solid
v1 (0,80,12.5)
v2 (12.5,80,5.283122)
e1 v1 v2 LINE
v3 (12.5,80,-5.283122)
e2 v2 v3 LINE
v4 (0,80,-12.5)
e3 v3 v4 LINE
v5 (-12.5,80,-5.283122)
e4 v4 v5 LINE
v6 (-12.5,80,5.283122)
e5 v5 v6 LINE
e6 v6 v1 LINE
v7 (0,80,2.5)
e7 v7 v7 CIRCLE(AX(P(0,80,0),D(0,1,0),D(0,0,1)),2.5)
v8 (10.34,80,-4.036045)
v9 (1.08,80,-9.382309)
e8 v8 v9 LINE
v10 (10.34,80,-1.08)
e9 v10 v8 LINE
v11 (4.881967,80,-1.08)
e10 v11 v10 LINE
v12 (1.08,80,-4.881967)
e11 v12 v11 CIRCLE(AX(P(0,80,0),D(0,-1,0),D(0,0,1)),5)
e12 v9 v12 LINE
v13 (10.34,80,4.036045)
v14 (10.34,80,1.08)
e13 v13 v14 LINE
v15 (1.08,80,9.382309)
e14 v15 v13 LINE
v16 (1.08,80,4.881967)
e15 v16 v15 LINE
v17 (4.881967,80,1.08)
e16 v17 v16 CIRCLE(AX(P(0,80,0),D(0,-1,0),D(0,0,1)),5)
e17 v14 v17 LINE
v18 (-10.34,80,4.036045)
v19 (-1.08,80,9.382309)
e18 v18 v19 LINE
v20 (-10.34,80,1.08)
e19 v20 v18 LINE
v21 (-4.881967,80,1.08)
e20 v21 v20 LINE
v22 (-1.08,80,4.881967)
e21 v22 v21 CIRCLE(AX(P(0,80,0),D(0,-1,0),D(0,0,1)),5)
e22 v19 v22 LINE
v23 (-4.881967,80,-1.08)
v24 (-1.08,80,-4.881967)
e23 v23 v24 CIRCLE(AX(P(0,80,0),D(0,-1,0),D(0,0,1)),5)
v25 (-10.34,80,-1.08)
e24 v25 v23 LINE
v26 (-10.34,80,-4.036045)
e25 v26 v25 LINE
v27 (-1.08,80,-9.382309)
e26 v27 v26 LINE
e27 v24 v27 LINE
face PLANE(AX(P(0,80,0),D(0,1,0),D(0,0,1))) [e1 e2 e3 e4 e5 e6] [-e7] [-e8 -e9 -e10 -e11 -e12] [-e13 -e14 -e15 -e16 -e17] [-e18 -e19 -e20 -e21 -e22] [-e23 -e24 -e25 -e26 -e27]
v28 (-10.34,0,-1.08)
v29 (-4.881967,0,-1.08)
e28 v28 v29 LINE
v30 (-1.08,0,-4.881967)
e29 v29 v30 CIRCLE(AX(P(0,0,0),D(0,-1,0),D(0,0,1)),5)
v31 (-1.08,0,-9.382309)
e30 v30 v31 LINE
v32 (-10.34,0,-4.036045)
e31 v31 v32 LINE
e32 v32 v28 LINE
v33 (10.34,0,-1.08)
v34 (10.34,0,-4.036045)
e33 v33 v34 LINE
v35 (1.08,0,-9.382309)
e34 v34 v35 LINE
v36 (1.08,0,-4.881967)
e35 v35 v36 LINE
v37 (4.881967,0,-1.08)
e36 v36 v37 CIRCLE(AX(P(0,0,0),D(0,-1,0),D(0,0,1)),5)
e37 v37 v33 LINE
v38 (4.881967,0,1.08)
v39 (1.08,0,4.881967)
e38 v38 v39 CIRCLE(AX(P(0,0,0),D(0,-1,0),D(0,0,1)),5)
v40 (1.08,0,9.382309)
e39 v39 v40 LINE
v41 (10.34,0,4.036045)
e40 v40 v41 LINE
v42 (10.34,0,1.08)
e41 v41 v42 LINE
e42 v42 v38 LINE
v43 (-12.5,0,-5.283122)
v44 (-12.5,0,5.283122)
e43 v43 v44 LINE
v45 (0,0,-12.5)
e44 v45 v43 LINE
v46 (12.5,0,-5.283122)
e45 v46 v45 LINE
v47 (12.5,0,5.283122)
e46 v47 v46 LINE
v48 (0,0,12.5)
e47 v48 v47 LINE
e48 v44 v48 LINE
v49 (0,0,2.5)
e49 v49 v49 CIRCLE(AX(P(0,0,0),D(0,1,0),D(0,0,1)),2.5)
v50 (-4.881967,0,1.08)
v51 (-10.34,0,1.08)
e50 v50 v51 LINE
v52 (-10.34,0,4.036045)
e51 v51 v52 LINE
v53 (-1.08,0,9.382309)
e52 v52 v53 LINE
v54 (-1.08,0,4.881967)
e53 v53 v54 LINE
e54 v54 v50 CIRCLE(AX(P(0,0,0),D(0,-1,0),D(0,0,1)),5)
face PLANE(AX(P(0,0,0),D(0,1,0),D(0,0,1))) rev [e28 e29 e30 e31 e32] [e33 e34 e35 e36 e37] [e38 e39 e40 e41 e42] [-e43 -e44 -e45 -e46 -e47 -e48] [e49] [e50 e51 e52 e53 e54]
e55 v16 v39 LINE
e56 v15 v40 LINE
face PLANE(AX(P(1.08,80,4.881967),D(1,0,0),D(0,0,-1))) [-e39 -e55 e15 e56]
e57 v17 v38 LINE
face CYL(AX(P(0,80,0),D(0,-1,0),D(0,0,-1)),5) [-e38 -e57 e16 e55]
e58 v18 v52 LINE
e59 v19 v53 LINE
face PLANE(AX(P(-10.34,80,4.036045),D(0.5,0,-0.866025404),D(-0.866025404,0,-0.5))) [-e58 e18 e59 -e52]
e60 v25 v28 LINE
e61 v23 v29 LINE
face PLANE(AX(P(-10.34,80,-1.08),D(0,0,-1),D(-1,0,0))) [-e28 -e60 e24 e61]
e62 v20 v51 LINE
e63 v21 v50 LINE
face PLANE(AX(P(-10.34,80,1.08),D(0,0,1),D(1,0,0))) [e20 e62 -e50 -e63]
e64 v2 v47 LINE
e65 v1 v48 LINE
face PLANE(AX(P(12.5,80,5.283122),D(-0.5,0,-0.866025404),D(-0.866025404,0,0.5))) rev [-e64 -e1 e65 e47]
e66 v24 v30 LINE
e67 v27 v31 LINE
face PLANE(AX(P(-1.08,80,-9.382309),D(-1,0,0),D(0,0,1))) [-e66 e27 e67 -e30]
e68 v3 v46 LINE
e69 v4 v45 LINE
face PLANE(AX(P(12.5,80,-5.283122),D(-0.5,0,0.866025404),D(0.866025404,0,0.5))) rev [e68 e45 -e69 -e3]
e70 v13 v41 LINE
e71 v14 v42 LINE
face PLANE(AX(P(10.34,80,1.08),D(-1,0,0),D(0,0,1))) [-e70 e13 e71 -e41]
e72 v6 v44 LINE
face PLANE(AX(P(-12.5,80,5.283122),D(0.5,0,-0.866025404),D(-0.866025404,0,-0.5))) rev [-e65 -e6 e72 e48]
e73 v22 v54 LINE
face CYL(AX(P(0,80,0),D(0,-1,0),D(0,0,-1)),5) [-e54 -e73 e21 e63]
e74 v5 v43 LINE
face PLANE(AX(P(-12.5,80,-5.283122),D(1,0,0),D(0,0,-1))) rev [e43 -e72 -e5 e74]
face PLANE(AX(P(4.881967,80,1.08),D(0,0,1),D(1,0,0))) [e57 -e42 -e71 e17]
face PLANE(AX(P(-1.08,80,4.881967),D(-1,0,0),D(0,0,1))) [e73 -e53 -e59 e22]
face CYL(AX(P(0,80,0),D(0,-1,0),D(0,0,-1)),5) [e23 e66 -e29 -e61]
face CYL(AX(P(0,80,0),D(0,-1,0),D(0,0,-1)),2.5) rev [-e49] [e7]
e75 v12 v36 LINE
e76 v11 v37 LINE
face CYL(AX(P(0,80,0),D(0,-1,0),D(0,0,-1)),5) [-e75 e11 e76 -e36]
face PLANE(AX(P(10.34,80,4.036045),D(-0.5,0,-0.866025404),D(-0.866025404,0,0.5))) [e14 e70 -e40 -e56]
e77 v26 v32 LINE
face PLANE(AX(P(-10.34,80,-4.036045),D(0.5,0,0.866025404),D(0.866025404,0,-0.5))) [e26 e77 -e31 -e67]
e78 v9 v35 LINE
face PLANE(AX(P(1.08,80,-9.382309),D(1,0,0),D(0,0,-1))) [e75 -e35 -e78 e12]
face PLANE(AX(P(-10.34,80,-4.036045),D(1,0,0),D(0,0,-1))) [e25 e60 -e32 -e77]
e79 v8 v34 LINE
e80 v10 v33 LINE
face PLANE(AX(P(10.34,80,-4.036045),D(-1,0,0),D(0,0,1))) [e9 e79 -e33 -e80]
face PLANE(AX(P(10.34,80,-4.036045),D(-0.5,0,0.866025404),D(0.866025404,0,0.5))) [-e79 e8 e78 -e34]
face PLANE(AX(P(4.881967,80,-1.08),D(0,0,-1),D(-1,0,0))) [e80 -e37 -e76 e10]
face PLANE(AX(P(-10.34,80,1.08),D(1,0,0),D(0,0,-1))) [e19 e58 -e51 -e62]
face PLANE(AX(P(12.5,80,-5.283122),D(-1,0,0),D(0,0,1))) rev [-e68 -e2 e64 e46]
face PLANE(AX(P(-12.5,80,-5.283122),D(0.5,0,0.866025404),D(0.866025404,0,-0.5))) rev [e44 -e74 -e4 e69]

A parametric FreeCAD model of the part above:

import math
import FreeCAD as App
import Part
import Sketcher
from FreeCAD import Vector
Q = App.Units.Quantity

doc = App.newDocument("Part")
params = doc.addObject("Spreadsheet::Sheet", "Params")
for row, (alias, value) in enumerate([
    ("sketch1_diameter", "5 mm"),
    ("sketch1_radius", "5 mm"),
    ("pad1_length", "80 mm"),
], start=1):
    params.set(f"A{row}", alias)
    params.set(f"B{row}", "=" + value)
    params.setAlias(f"B{row}", alias)

body = doc.addObject("PartDesign::Body", "Body")

# Sketch on XZ plane
sketch1 = doc.addObject("Sketcher::SketchObject", "Sketch")
body.addObject(sketch1)
sketch1.AttachmentSupport = (doc.XZ_Plane, [""])
sketch1.MapMode = "FlatFace"
sketch1.addGeometry(Part.LineSegment(Vector(-12.5, -5.3, 0), Vector(-12.5, 5.3, 0)), False)
sketch1.addGeometry(Part.LineSegment(Vector(-12.5, 5.3, 0), Vector(0, 12.5, 0)), False)
sketch1.addGeometry(Part.LineSegment(Vector(0, 12.5, 0), Vector(12.5, 5.3, 0)), False)
sketch1.addGeometry(Part.LineSegment(Vector(12.5, 5.3, 0), Vector(12.5, -5.3, 0)), False)
sketch1.addGeometry(Part.LineSegment(Vector(12.5, -5.3, 0), Vector(0, -12.5, 0)), False)
sketch1.addGeometry(Part.LineSegment(Vector(0, -12.5, 0), Vector(-12.5, -5.3, 0)), False)
sketch1.addGeometry(Part.LineSegment(Vector(-10.3, 4, 0), Vector(-10.3, 1.1, 0)), False)
sketch1.addGeometry(Part.LineSegment(Vector(-10.3, 1.1, 0), Vector(-4.9, 1.1, 0)), False)
sketch1.addGeometry(Part.ArcOfCircle(Part.Circle(Vector(0, 0, 0), Vector(0, 0, 1), 5), math.radians(102), math.radians(168)), False)
sketch1.addGeometry(Part.LineSegment(Vector(-1.1, 4.9, 0), Vector(-1.1, 9.4, 0)), False)
sketch1.addGeometry(Part.LineSegment(Vector(-1.1, 9.4, 0), Vector(-10.3, 4, 0)), False)
sketch1.addGeometry(Part.LineSegment(Vector(1.1, 9.4, 0), Vector(1.1, 4.9, 0)), False)
sketch1.addGeometry(Part.ArcOfCircle(Part.Circle(Vector(0, 0, 0), Vector(0, 0, 1), 5), math.radians(12), math.radians(78)), False)
sketch1.addGeometry(Part.LineSegment(Vector(4.9, 1.1, 0), Vector(10.3, 1.1, 0)), False)
sketch1.addGeometry(Part.LineSegment(Vector(10.3, 1.1, 0), Vector(10.3, 4, 0)), False)
sketch1.addGeometry(Part.LineSegment(Vector(10.3, 4, 0), Vector(1.1, 9.4, 0)), False)
sketch1.addGeometry(Part.LineSegment(Vector(-10.3, -4, 0), Vector(-1.1, -9.4, 0)), False)
sketch1.addGeometry(Part.LineSegment(Vector(-1.1, -9.4, 0), Vector(-1.1, -4.9, 0)), False)
sketch1.addGeometry(Part.ArcOfCircle(Part.Circle(Vector(0, 0, 0), Vector(0, 0, 1), 5), math.radians(-168), math.radians(-102)), False)
sketch1.addGeometry(Part.LineSegment(Vector(-4.9, -1.1, 0), Vector(-10.3, -1.1, 0)), False)
sketch1.addGeometry(Part.LineSegment(Vector(-10.3, -1.1, 0), Vector(-10.3, -4, 0)), False)
sketch1.addGeometry(Part.Circle(Vector(0, 0, 0), Vector(0, 0, 1), 2.5), False)
sketch1.addGeometry(Part.LineSegment(Vector(1.1, -4.9, 0), Vector(1.1, -9.4, 0)), False)
sketch1.addGeometry(Part.LineSegment(Vector(1.1, -9.4, 0), Vector(10.3, -4, 0)), False)
sketch1.addGeometry(Part.LineSegment(Vector(10.3, -4, 0), Vector(10.3, -1.1, 0)), False)
sketch1.addGeometry(Part.LineSegment(Vector(10.3, -1.1, 0), Vector(4.9, -1.1, 0)), False)
sketch1.addGeometry(Part.ArcOfCircle(Part.Circle(Vector(0, 0, 0), Vector(0, 0, 1), 5), math.radians(-78), math.radians(-12)), False)
sketch1.addConstraint(Sketcher.Constraint("Coincident", 0, 2, 1, 1))
sketch1.addConstraint(Sketcher.Constraint("Coincident", 1, 2, 2, 1))
sketch1.addConstraint(Sketcher.Constraint("Coincident", 2, 2, 3, 1))
sketch1.addConstraint(Sketcher.Constraint("Coincident", 3, 2, 4, 1))
sketch1.addConstraint(Sketcher.Constraint("Coincident", 4, 2, 5, 1))
sketch1.addConstraint(Sketcher.Constraint("Coincident", 5, 2, 0, 1))
sketch1.addConstraint(Sketcher.Constraint("Coincident", 6, 2, 7, 1))
sketch1.addConstraint(Sketcher.Constraint("Coincident", 7, 2, 8, 2))
sketch1.addConstraint(Sketcher.Constraint("Coincident", 8, 1, 9, 1))
sketch1.addConstraint(Sketcher.Constraint("Coincident", 9, 2, 10, 1))
sketch1.addConstraint(Sketcher.Constraint("Coincident", 10, 2, 6, 1))
sketch1.addConstraint(Sketcher.Constraint("Coincident", 11, 2, 12, 2))
sketch1.addConstraint(Sketcher.Constraint("Coincident", 12, 1, 13, 1))
sketch1.addConstraint(Sketcher.Constraint("Coincident", 13, 2, 14, 1))
sketch1.addConstraint(Sketcher.Constraint("Coincident", 14, 2, 15, 1))
sketch1.addConstraint(Sketcher.Constraint("Coincident", 15, 2, 11, 1))
sketch1.addConstraint(Sketcher.Constraint("Coincident", 16, 2, 17, 1))
sketch1.addConstraint(Sketcher.Constraint("Coincident", 17, 2, 18, 2))
sketch1.addConstraint(Sketcher.Constraint("Coincident", 18, 1, 19, 1))
sketch1.addConstraint(Sketcher.Constraint("Coincident", 19, 2, 20, 1))
sketch1.addConstraint(Sketcher.Constraint("Coincident", 20, 2, 16, 1))
sketch1.addConstraint(Sketcher.Constraint("Coincident", 22, 2, 23, 1))
sketch1.addConstraint(Sketcher.Constraint("Coincident", 23, 2, 24, 1))
sketch1.addConstraint(Sketcher.Constraint("Coincident", 24, 2, 25, 1))
sketch1.addConstraint(Sketcher.Constraint("Coincident", 25, 2, 26, 2))
sketch1.addConstraint(Sketcher.Constraint("Coincident", 26, 1, 22, 1))
sketch1.addConstraint(Sketcher.Constraint("Vertical", 0))
sketch1.addConstraint(Sketcher.Constraint("Vertical", 3))
sketch1.addConstraint(Sketcher.Constraint("Vertical", 6))
sketch1.addConstraint(Sketcher.Constraint("Horizontal", 7))
sketch1.addConstraint(Sketcher.Constraint("Vertical", 9))
sketch1.addConstraint(Sketcher.Constraint("Vertical", 11))
sketch1.addConstraint(Sketcher.Constraint("Horizontal", 13))
sketch1.addConstraint(Sketcher.Constraint("Vertical", 14))
sketch1.addConstraint(Sketcher.Constraint("Vertical", 17))
sketch1.addConstraint(Sketcher.Constraint("Horizontal", 19))
sketch1.addConstraint(Sketcher.Constraint("Vertical", 20))
sketch1.addConstraint(Sketcher.Constraint("Vertical", 22))
sketch1.addConstraint(Sketcher.Constraint("Vertical", 24))
sketch1.addConstraint(Sketcher.Constraint("Horizontal", 25))
sketch1.addConstraint(Sketcher.Constraint("Coincident", 8, 3, -1, 1))
sketch1.addConstraint(Sketcher.Constraint("Coincident", 12, 3, -1, 1))
sketch1.addConstraint(Sketcher.Constraint("Coincident", 18, 3, -1, 1))
sketch1.addConstraint(Sketcher.Constraint("Coincident", 21, 3, -1, 1))
sketch1.addConstraint(Sketcher.Constraint("Coincident", 26, 3, -1, 1))
sketch1.addConstraint(Sketcher.Constraint("Equal", 8, 12))
sketch1.addConstraint(Sketcher.Constraint("Equal", 12, 18))
sketch1.addConstraint(Sketcher.Constraint("Equal", 18, 26))
sketch1.addConstraint(Sketcher.Constraint("Symmetric", 0, 2, 3, 2, -1, 1))
sketch1.addConstraint(Sketcher.Constraint("Symmetric", 1, 2, 4, 2, -1, 1))
sketch1.addConstraint(Sketcher.Constraint("Symmetric", 15, 2, 16, 2, -1, 1))
sketch1.addConstraint(Sketcher.Constraint("Symmetric", 13, 2, 19, 2, -1, 1))
sketch1.addConstraint(Sketcher.Constraint("Symmetric", 9, 2, 22, 2, -1, 1))
sketch1.addConstraint(Sketcher.Constraint("Symmetric", 10, 2, 23, 2, -1, 1))
sketch1.addConstraint(Sketcher.Constraint("Symmetric", 6, 2, 13, 2, -2))
sketch1.addConstraint(Sketcher.Constraint("Symmetric", 9, 2, 15, 2, -2))
sketch1.addConstraint(Sketcher.Constraint("PointOnObject", 1, 2, -2))
sketch1.addConstraint(Sketcher.Constraint("Parallel", 2, 5))
sketch1.addConstraint(Sketcher.Constraint("Parallel", 4, 10))
sketch1.addConstraint(Sketcher.Constraint("Parallel", 5, 15))
sketch1.addConstraint(Sketcher.Constraint("Parallel", 15, 16))
sketch1.addConstraint(Sketcher.Constraint("Horizontal", 0, 2, 2, 2))
sketch1.addConstraint(Sketcher.Constraint("Horizontal", 19, 2, 24, 2))
sketch1.addConstraint(Sketcher.Constraint("Diameter", 21, 5.0))
sketch1.addConstraint(Sketcher.Constraint("Radius", 8, 5.0))
sketch1.addConstraint(Sketcher.Constraint("Angle", 1, Q("30 deg")))
sketch1.addConstraint(Sketcher.Constraint("DistanceX", 0, 2, -1, 1, 12.5))
sketch1.addConstraint(Sketcher.Constraint("DistanceY", -1, 1, 1, 2, 12.5))
sketch1.addConstraint(Sketcher.Constraint("DistanceX", 6, 2, -1, 1, 10.34))
sketch1.addConstraint(Sketcher.Constraint("DistanceY", -1, 1, 6, 2, 1.08))
sketch1.addConstraint(Sketcher.Constraint("DistanceX", 8, 1, -1, 1, 1.08))
sketch1.addConstraint(Sketcher.Constraint("DistanceY", 9, 1, 9, 2, 4.500342))
sketch1.setExpression("Constraints[63]", "Params.sketch1_diameter")
sketch1.setExpression("Constraints[64]", "Params.sketch1_radius")
pad1 = doc.addObject("PartDesign::Pad", "Pad")
body.addObject(pad1)
pad1.Profile = sketch1
pad1.setExpression("Length", "Params.pad1_length")
pad1.Reversed = True

doc.recompute()
